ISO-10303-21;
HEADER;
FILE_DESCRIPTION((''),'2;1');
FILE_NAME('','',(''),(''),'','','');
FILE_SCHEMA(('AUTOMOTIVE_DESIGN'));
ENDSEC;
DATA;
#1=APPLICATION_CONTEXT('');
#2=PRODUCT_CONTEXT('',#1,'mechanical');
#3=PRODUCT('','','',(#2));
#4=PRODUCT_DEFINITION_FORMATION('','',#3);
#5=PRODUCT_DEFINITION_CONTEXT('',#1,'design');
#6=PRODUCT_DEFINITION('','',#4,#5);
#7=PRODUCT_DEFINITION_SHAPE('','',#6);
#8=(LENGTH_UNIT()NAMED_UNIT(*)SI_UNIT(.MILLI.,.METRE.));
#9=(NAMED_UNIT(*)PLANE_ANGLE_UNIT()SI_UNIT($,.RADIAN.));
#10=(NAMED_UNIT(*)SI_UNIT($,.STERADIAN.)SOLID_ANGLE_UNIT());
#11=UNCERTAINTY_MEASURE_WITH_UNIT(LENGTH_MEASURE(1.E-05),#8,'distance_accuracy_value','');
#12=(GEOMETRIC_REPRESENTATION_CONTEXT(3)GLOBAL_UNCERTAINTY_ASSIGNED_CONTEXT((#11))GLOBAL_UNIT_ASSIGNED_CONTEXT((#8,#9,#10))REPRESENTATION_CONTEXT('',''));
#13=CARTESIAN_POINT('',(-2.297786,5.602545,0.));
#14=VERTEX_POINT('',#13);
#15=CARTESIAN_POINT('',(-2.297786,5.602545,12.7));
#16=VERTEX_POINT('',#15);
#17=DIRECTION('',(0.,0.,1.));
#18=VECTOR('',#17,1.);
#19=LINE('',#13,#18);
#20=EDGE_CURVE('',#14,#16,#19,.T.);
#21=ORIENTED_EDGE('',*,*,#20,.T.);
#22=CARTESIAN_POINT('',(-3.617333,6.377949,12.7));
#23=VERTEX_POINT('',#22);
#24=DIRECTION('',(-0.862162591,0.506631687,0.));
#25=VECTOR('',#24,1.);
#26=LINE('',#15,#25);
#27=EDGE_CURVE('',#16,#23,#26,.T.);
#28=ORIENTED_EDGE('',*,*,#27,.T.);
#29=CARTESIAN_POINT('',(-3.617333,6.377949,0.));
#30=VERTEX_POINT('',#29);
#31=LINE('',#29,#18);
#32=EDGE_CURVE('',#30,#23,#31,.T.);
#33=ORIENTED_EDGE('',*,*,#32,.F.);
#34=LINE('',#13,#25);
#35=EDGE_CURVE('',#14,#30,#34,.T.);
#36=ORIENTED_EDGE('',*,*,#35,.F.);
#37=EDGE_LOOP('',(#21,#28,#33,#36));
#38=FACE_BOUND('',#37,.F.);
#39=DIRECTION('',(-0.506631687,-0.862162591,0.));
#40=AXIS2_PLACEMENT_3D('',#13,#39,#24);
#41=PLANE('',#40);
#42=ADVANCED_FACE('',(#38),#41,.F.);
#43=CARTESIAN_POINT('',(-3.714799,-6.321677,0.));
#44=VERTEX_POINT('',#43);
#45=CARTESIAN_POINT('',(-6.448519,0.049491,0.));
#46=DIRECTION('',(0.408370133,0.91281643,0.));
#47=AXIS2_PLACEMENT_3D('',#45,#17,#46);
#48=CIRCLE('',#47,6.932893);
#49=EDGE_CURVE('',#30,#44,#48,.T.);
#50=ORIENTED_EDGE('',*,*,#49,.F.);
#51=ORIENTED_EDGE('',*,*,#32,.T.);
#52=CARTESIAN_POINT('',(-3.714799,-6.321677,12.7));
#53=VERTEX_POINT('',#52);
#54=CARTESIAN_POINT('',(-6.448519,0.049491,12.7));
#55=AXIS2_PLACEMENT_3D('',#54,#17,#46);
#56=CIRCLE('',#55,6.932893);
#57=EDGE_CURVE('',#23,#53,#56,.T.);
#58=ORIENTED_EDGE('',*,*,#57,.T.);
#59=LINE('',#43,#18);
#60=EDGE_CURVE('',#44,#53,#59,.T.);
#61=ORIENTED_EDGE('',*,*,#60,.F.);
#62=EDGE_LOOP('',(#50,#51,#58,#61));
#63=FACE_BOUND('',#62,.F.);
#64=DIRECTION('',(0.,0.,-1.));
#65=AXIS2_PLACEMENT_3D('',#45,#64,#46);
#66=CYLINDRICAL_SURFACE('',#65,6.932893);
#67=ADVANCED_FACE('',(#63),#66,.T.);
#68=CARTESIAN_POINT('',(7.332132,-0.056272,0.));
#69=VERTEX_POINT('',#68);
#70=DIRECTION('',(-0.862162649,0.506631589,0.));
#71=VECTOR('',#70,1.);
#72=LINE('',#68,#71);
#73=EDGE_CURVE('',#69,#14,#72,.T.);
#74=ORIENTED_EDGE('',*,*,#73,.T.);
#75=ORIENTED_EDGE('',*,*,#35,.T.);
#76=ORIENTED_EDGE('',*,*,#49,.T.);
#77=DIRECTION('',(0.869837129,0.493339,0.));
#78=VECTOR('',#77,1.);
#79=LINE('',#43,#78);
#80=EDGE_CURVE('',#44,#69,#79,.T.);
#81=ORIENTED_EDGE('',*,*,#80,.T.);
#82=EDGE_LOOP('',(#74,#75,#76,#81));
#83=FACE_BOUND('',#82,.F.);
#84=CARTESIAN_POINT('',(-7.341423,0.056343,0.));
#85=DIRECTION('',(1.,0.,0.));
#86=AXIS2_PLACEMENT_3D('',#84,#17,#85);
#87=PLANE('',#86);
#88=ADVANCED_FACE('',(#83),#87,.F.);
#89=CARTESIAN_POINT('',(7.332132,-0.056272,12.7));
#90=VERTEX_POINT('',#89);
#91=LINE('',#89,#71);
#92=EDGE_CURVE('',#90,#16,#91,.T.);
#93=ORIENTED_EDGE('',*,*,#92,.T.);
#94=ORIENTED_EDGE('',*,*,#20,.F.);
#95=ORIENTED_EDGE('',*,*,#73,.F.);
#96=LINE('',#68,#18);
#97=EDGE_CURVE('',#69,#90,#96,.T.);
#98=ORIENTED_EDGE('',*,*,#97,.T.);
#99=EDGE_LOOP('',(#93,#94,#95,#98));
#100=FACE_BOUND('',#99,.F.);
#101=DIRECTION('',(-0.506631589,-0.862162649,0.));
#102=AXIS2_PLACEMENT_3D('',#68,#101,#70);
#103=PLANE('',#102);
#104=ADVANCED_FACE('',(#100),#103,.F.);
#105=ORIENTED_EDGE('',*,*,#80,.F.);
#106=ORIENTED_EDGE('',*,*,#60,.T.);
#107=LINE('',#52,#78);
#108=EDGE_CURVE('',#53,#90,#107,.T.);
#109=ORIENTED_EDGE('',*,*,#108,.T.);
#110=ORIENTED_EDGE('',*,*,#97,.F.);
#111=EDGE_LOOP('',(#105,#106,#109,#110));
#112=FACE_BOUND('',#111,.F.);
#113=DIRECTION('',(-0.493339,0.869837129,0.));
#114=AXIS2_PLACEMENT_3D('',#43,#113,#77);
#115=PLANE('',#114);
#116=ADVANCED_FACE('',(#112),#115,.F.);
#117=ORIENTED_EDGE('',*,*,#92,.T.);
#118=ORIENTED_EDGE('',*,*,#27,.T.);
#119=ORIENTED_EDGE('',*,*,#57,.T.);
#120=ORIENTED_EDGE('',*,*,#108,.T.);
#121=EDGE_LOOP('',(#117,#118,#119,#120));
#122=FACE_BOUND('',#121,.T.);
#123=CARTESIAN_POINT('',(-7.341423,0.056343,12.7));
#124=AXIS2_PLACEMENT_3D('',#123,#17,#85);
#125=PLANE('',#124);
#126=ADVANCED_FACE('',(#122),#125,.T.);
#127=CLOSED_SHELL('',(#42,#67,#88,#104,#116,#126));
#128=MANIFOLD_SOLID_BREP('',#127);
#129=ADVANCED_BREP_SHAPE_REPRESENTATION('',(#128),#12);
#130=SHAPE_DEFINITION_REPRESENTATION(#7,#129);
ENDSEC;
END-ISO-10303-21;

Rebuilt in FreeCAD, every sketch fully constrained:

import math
import FreeCAD as App
import Part
import Sketcher
from FreeCAD import Vector
Q = App.Units.Quantity

doc = App.newDocument("Part")
params = doc.addObject("Spreadsheet::Sheet", "Params")
for row, (alias, value) in enumerate([
    ("sketch1_length", "0.5 in"),
    ("pad1_length", "0.5 in"),
], start=1):
    params.set(f"A{row}", alias)
    params.set(f"B{row}", "=" + value)
    params.setAlias(f"B{row}", alias)

body = doc.addObject("PartDesign::Body", "Body")

sketch1 = body.newObject("Sketcher::SketchObject", "Sketch")
sketch1.AttachmentSupport = (doc.getObject("XY_Plane"), [""])
sketch1.MapMode = "FlatFace"
sketch1.addGeometry(Part.ArcOfCircle(Part.Circle(Vector(-6.448519, 0.049491, 0), Vector(0, 0, 1), 6.932893), math.radians(65.89751), math.radians(293.22305)), False)
sketch1.addGeometry(Part.LineSegment(Vector(-3.714799, -6.321677, 0), Vector(7.332132, -0.056272, 0)), False)
sketch1.addGeometry(Part.LineSegment(Vector(7.332132, -0.056272, 0), Vector(-2.297786, 5.602545, 0)), False)
sketch1.addGeometry(Part.LineSegment(Vector(-2.297786, 5.602545, 0), Vector(-3.617333, 6.377949, 0)), False)
sketch1.addConstraint(Sketcher.Constraint("Coincident", 0, 2, 1, 1))
sketch1.addConstraint(Sketcher.Constraint("Coincident", 1, 2, 2, 1))
sketch1.addConstraint(Sketcher.Constraint("Coincident", 2, 2, 3, 1))
sketch1.addConstraint(Sketcher.Constraint("Coincident", 3, 2, 0, 1))
sketch1.addConstraint(Sketcher.Constraint("Parallel", 2, 3))
sketch1.addConstraint(Sketcher.Constraint("Distance", 1, Q("0.5 in")))
sketch1.addConstraint(Sketcher.Constraint("Radius", 0, Q("6.932893 mm")))
sketch1.addConstraint(Sketcher.Constraint("DistanceX", 0, 2, -1, 1, Q("3.714799 mm")))
sketch1.addConstraint(Sketcher.Constraint("Distance", 2, Q("11.169491 mm")))
sketch1.addConstraint(Sketcher.Constraint("Distance", 3, Q("1.530508 mm")))
sketch1.addConstraint(Sketcher.Constraint("DistanceX", 0, 3, -1, 1, Q("6.448519 mm")))
sketch1.addConstraint(Sketcher.Constraint("DistanceY", -1, 1, 0, 3, Q("0.049491 mm")))
sketch1.addConstraint(Sketcher.Constraint("DistanceX", -1, 1, 1, 2, Q("7.332132 mm")))
sketch1.setExpression("Constraints[5]", "Params.sketch1_length")
pad1 = body.newObject("PartDesign::Pad", "Pad")
pad1.Profile = sketch1
pad1.setExpression("Length", "Params.pad1_length")

doc.recompute()
